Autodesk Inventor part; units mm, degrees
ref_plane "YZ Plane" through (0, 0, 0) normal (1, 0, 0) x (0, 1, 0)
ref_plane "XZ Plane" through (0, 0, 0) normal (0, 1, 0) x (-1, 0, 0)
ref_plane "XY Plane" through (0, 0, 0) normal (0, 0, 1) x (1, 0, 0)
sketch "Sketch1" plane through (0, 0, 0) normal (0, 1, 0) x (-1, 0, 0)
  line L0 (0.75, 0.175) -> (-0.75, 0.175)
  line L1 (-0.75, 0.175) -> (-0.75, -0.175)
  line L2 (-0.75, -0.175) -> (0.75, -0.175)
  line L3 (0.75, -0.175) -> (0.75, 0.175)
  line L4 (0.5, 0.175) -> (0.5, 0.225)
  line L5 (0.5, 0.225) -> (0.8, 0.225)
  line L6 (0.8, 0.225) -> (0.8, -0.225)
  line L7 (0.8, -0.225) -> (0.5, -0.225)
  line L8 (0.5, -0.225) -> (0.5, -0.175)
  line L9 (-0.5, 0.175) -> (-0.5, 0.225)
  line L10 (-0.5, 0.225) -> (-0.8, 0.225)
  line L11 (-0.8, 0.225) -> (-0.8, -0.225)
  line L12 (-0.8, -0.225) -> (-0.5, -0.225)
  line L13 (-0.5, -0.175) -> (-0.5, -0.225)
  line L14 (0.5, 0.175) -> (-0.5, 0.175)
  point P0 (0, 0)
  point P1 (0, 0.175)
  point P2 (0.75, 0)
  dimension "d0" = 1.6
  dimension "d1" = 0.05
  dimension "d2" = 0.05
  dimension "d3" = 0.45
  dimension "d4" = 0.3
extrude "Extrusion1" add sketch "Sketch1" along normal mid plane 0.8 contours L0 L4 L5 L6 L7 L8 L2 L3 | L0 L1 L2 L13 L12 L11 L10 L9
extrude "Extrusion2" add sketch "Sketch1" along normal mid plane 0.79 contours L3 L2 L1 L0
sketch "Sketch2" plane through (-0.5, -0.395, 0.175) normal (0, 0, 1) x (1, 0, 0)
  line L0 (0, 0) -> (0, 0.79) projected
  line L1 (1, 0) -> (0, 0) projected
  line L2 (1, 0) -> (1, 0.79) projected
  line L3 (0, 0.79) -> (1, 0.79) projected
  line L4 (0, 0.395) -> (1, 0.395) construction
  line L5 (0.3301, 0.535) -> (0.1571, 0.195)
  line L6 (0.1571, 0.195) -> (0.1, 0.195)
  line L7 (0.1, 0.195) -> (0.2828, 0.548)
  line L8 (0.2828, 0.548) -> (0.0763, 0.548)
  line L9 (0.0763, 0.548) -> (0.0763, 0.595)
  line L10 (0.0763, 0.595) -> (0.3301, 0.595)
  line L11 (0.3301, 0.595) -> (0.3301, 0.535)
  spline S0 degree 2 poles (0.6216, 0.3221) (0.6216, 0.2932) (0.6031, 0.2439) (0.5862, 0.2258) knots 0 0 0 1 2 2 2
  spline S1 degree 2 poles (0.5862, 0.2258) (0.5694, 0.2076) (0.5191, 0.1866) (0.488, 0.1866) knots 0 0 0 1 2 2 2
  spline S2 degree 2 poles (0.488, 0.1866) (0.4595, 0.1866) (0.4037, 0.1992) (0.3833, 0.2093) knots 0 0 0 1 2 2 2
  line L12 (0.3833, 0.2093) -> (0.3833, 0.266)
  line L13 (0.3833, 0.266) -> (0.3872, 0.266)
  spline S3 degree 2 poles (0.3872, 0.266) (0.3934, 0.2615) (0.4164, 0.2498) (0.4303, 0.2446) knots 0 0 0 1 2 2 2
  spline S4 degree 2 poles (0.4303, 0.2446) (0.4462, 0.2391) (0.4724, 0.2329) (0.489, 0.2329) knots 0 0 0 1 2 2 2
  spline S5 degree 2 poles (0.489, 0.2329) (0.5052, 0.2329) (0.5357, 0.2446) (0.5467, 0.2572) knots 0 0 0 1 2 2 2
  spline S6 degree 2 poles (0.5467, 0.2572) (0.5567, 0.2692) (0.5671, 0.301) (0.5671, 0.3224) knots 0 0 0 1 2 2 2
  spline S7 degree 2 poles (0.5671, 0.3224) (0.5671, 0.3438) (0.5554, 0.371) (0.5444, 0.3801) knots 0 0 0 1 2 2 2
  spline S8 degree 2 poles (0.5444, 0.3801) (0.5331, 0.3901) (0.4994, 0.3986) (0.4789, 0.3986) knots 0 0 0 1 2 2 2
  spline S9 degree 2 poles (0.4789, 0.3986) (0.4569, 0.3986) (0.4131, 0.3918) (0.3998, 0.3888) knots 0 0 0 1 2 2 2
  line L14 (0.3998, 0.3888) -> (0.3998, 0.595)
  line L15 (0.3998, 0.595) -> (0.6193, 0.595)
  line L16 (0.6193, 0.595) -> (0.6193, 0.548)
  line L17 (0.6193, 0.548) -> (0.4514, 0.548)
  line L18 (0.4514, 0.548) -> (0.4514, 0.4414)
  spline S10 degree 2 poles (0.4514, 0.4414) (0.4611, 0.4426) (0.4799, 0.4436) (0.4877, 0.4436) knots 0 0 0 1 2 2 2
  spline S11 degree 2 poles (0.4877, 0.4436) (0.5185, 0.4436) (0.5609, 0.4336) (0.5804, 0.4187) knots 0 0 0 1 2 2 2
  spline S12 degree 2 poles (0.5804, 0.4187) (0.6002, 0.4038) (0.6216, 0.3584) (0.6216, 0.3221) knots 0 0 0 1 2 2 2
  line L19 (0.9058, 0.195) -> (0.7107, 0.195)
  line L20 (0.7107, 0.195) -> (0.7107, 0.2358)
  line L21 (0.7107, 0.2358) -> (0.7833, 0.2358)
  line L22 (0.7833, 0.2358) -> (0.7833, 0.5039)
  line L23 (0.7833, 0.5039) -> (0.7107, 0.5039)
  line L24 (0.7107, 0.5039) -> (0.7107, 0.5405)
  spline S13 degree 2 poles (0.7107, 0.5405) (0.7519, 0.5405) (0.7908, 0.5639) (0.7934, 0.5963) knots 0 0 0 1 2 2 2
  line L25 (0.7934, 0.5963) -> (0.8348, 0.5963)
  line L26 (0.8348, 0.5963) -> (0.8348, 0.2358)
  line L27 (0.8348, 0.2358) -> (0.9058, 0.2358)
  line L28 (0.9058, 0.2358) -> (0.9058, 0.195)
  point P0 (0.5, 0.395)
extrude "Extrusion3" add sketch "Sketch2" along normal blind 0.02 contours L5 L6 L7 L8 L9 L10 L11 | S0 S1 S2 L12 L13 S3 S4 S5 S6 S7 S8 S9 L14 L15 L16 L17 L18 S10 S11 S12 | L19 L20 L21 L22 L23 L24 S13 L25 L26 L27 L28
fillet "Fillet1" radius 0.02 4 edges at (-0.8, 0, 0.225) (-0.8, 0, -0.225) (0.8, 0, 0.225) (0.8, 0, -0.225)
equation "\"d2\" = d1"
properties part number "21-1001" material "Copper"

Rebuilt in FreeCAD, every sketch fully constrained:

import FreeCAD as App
import Part
import Sketcher

V = App.Vector


def edges_at(feature, points):
    """Names of the edges that pass closest to the given points."""
    edges = feature.Shape.Edges
    near = lambda p: min(range(len(edges)), key=lambda i: edges[i].distToShape(Part.Vertex(*p))[0])
    return sorted({f"Edge{near(p) + 1}" for p in points})

doc = App.newDocument("Part")
params = doc.addObject("Spreadsheet::Sheet", "Params")
for row, (alias, value) in enumerate([
    ("sketch1_width", "0.3 mm"),
    ("sketch1_height", "0.05 mm"),
    ("sketch1_height2", "0.45 mm"),
    ("pad1_length", "0.8 mm"),
    ("sketch2_width", "1.5 mm"),
    ("sketch2_height", "0.35 mm"),
    ("pad2_length", "0.79 mm"),
    ("sketch3_height", "0.06 mm"),
    ("pad3_length", "0.02 mm"),
    ("fillet_radius", "0.02 mm"),
], start=1):
    params.set(f"A{row}", alias)
    params.set(f"B{row}", "=" + value)
    params.setAlias(f"B{row}", alias)

body = doc.addObject("PartDesign::Body", "Body")
body.AllowCompound = True

sketch1 = doc.addObject("Sketcher::SketchObject", "Sketch")
body.addObject(sketch1)
sketch1.AttachmentSupport = (doc.XZ_Plane, [""])
sketch1.MapMode = "FlatFace"
sketch1.addGeometry([
    Part.LineSegment(V(-0.5, 0.17, 0), V(-0.75, 0.17, 0)),
    Part.LineSegment(V(-0.75, 0.17, 0), V(-0.75, -0.17, 0)),
    Part.LineSegment(V(-0.75, -0.17, 0), V(-0.5, -0.17, 0)),
    Part.LineSegment(V(-0.5, -0.17, 0), V(-0.5, -0.23, 0)),
    Part.LineSegment(V(-0.5, -0.23, 0), V(-0.8, -0.23, 0)),
    Part.LineSegment(V(-0.8, -0.23, 0), V(-0.8, 0.23, 0)),
    Part.LineSegment(V(-0.8, 0.23, 0), V(-0.5, 0.23, 0)),
    Part.LineSegment(V(-0.5, 0.23, 0), V(-0.5, 0.17, 0)),
    Part.LineSegment(V(0.75, 0.17, 0), V(0.5, 0.17, 0)),
    Part.LineSegment(V(0.5, 0.17, 0), V(0.5, 0.23, 0)),
    Part.LineSegment(V(0.5, 0.23, 0), V(0.8, 0.23, 0)),
    Part.LineSegment(V(0.8, 0.23, 0), V(0.8, -0.23, 0)),
    Part.LineSegment(V(0.8, -0.23, 0), V(0.5, -0.23, 0)),
    Part.LineSegment(V(0.5, -0.23, 0), V(0.5, -0.17, 0)),
    Part.LineSegment(V(0.5, -0.17, 0), V(0.75, -0.17, 0)),
    Part.LineSegment(V(0.75, -0.17, 0), V(0.75, 0.17, 0)),
], False)
sketch1.addConstraint([
    Sketcher.Constraint("Coincident", 0, 2, 1, 1),
    Sketcher.Constraint("Coincident", 1, 2, 2, 1),
    Sketcher.Constraint("Coincident", 2, 2, 3, 1),
    Sketcher.Constraint("Coincident", 3, 2, 4, 1),
    Sketcher.Constraint("Coincident", 4, 2, 5, 1),
    Sketcher.Constraint("Coincident", 5, 2, 6, 1),
    Sketcher.Constraint("Coincident", 6, 2, 7, 1),
    Sketcher.Constraint("Coincident", 7, 2, 0, 1),
    Sketcher.Constraint("Coincident", 8, 2, 9, 1),
    Sketcher.Constraint("Coincident", 9, 2, 10, 1),
    Sketcher.Constraint("Coincident", 10, 2, 11, 1),
    Sketcher.Constraint("Coincident", 11, 2, 12, 1),
    Sketcher.Constraint("Coincident", 12, 2, 13, 1),
    Sketcher.Constraint("Coincident", 13, 2, 14, 1),
    Sketcher.Constraint("Coincident", 14, 2, 15, 1),
    Sketcher.Constraint("Coincident", 15, 2, 8, 1),
    Sketcher.Constraint("Horizontal", 0),
    Sketcher.Constraint("Vertical", 1),
    Sketcher.Constraint("Horizontal", 2),
    Sketcher.Constraint("Vertical", 3),
    Sketcher.Constraint("Horizontal", 4),
    Sketcher.Constraint("Vertical", 5),
    Sketcher.Constraint("Horizontal", 6),
    Sketcher.Constraint("Vertical", 7),
    Sketcher.Constraint("Horizontal", 8),
    Sketcher.Constraint("Vertical", 9),
    Sketcher.Constraint("Horizontal", 10),
    Sketcher.Constraint("Vertical", 11),
    Sketcher.Constraint("Horizontal", 12),
    Sketcher.Constraint("Vertical", 13),
    Sketcher.Constraint("Horizontal", 14),
    Sketcher.Constraint("Vertical", 15),
    Sketcher.Constraint("Symmetric", 2, 2, 8, 2, -1, 1),
    Sketcher.Constraint("Symmetric", 4, 2, 10, 2, -1, 1),
    Sketcher.Constraint("Symmetric", 6, 2, 12, 2, -1, 1),
    Sketcher.Constraint("Symmetric", 0, 2, 14, 2, -1, 1),
    Sketcher.Constraint("Symmetric", 7, 2, 8, 2, -2),
    Sketcher.Constraint("Horizontal", 6, 2, 9, 2),
    Sketcher.Constraint("DistanceX", 4, 2, 4, 1, 0.3),
    Sketcher.Constraint("DistanceY", 3, 2, 3, 1, 0.05),
    Sketcher.Constraint("DistanceY", 5, 1, 5, 2, 0.45),
    Sketcher.Constraint("DistanceX", 4, 2, 1, 2, 0.05),
    Sketcher.Constraint("DistanceX", 7, 2, 8, 2, 1.0),
])
sketch1.setExpression("Constraints[38]", "Params.sketch1_width")
sketch1.setExpression("Constraints[39]", "Params.sketch1_height")
sketch1.setExpression("Constraints[40]", "Params.sketch1_height2")
pad1 = doc.addObject("PartDesign::Pad", "Pad")
body.addObject(pad1)
pad1.Profile = sketch1
pad1.setExpression("Length", "Params.pad1_length")
pad1.Midplane = True

sketch2 = doc.addObject("Sketcher::SketchObject", "Sketch001")
body.addObject(sketch2)
sketch2.AttachmentSupport = (doc.XZ_Plane, [""])
sketch2.MapMode = "FlatFace"
sketch2.addGeometry([
    Part.LineSegment(V(-0.75, -0.17, 0), V(-0.75, 0.17, 0)),
    Part.LineSegment(V(-0.75, 0.17, 0), V(0.75, 0.17, 0)),
    Part.LineSegment(V(0.75, 0.17, 0), V(0.75, -0.17, 0)),
    Part.LineSegment(V(0.75, -0.17, 0), V(-0.75, -0.17, 0)),
], False)
sketch2.addConstraint([
    Sketcher.Constraint("Coincident", 0, 2, 1, 1),
    Sketcher.Constraint("Coincident", 1, 2, 2, 1),
    Sketcher.Constraint("Coincident", 2, 2, 3, 1),
    Sketcher.Constraint("Coincident", 3, 2, 0, 1),
    Sketcher.Constraint("Vertical", 0),
    Sketcher.Constraint("Horizontal", 1),
    Sketcher.Constraint("Vertical", 2),
    Sketcher.Constraint("Horizontal", 3),
    Sketcher.Constraint("Symmetric", 0, 2, 2, 2, -1, 1),
    Sketcher.Constraint("DistanceX", 1, 1, 1, 2, 1.5),
    Sketcher.Constraint("DistanceY", 0, 1, 0, 2, 0.35),
])
sketch2.setExpression("Constraints[9]", "Params.sketch2_width")
sketch2.setExpression("Constraints[10]", "Params.sketch2_height")
pad2 = doc.addObject("PartDesign::Pad", "Pad001")
body.addObject(pad2)
pad2.Profile = sketch2
pad2.setExpression("Length", "Params.pad2_length")
pad2.Midplane = True

sketch3 = doc.addObject("Sketcher::SketchObject", "Sketch002")
body.addObject(sketch3)
sketch3.AttachmentSupport = (doc.XY_Plane, [""])
sketch3.MapMode = "FlatFace"
sketch3.AttachmentOffset = App.Placement(V(0, 0, 0.175), App.Rotation())
sketch3.addGeometry([
    Part.LineSegment(V(-0.3429, -0.2, 0), V(-0.1699, 0.14, 0)),
    Part.LineSegment(V(-0.1699, 0.14, 0), V(-0.1699, 0.2, 0)),
    Part.LineSegment(V(-0.1699, 0.2, 0), V(-0.4237, 0.2, 0)),
    Part.LineSegment(V(-0.4237, 0.2, 0), V(-0.4237, 0.153, 0)),
    Part.LineSegment(V(-0.4237, 0.153, 0), V(-0.2172, 0.153, 0)),
    Part.LineSegment(V(-0.2172, 0.153, 0), V(-0.4, -0.2, 0)),
    Part.LineSegment(V(-0.4, -0.2, 0), V(-0.3429, -0.2, 0)),
    Part.BSplineCurve([V(0.1216, -0.0729, 0), V(0.1216, -0.1018, 0), V(0.1031, -0.1511, 0), V(0.0862, -0.1692, 0)], [3, 1, 3], [0, 1, 2], False, 2, [1, 1, 1, 1], False),
    Part.BSplineCurve([V(0.0804, 0.0237, 0), V(0.1002, 0.0088, 0), V(0.1216, -0.0366, 0), V(0.1216, -0.0729, 0)], [3, 1, 3], [0, 1, 2], False, 2, [1, 1, 1, 1], False),
    Part.BSplineCurve([V(-0.0123, 0.0486, 0), V(0.0185, 0.0486, 0), V(0.0609, 0.0386, 0), V(0.0804, 0.0237, 0)], [3, 1, 3], [0, 1, 2], False, 2, [1, 1, 1, 1], False),
    Part.BSplineCurve([V(-0.0486, 0.0464, 0), V(-0.0389, 0.0476, 0), V(-0.0201, 0.0486, 0), V(-0.0123, 0.0486, 0)], [3, 1, 3], [0, 1, 2], False, 2, [1, 1, 1, 1], False),
    Part.LineSegment(V(-0.0486, 0.0464, 0), V(-0.0486, 0.153, 0)),
    Part.LineSegment(V(-0.0486, 0.153, 0), V(0.1193, 0.153, 0)),
    Part.LineSegment(V(0.1193, 0.153, 0), V(0.1193, 0.2, 0)),
    Part.LineSegment(V(0.1193, 0.2, 0), V(-0.1002, 0.2, 0)),
    Part.LineSegment(V(-0.1002, 0.2, 0), V(-0.1002, -0.0062, 0)),
    Part.BSplineCurve([V(-0.0211, 0.0036, 0), V(-0.0431, 0.0036, 0), V(-0.0869, -0.0032, 0), V(-0.1002, -0.0062, 0)], [3, 1, 3], [0, 1, 2], False, 2, [1, 1, 1, 1], False),
    Part.BSplineCurve([V(0.0444, -0.0149, 0), V(0.0331, -0.0049, 0), V(-0.0006, 0.0036, 0), V(-0.0211, 0.0036, 0)], [3, 1, 3], [0, 1, 2], False, 2, [1, 1, 1, 1], False),
    Part.BSplineCurve([V(0.0671, -0.0726, 0), V(0.0671, -0.0512, 0), V(0.0554, -0.024, 0), V(0.0444, -0.0149, 0)], [3, 1, 3], [0, 1, 2], False, 2, [1, 1, 1, 1], False),
    Part.BSplineCurve([V(0.0467, -0.1378, 0), V(0.0567, -0.1258, 0), V(0.0671, -0.094, 0), V(0.0671, -0.0726, 0)], [3, 1, 3], [0, 1, 2], False, 2, [1, 1, 1, 1], False),
    Part.BSplineCurve([V(-0.011, -0.1621, 0), V(0.0052, -0.1621, 0), V(0.0357, -0.1504, 0), V(0.0467, -0.1378, 0)], [3, 1, 3], [0, 1, 2], False, 2, [1, 1, 1, 1], False),
    Part.BSplineCurve([V(-0.0697, -0.1504, 0), V(-0.0538, -0.1559, 0), V(-0.0276, -0.1621, 0), V(-0.011, -0.1621, 0)], [3, 1, 3], [0, 1, 2], False, 2, [1, 1, 1, 1], False),
    Part.BSplineCurve([V(-0.1128, -0.129, 0), V(-0.1066, -0.1335, 0), V(-0.0836, -0.1452, 0), V(-0.0697, -0.1504, 0)], [3, 1, 3], [0, 1, 2], False, 2, [1, 1, 1, 1], False),
    Part.LineSegment(V(-0.1128, -0.129, 0), V(-0.1167, -0.129, 0)),
    Part.LineSegment(V(-0.1167, -0.129, 0), V(-0.1167, -0.1857, 0)),
    Part.BSplineCurve([V(-0.012, -0.2084, 0), V(-0.0405, -0.2084, 0), V(-0.0963, -0.1958, 0), V(-0.1167, -0.1857, 0)], [3, 1, 3], [0, 1, 2], False, 2, [1, 1, 1, 1], False),
    Part.BSplineCurve([V(0.0862, -0.1692, 0), V(0.0694, -0.1874, 0), V(0.0191, -0.2084, 0), V(-0.012, -0.2084, 0)], [3, 1, 3], [0, 1, 2], False, 2, [1, 1, 1, 1], False),
    Part.LineSegment(V(0.2107, -0.2, 0), V(0.4058, -0.2, 0)),
    Part.LineSegment(V(0.4058, -0.2, 0), V(0.4058, -0.1592, 0)),
    Part.LineSegment(V(0.4058, -0.1592, 0), V(0.3348, -0.1592, 0)),
    Part.LineSegment(V(0.3348, -0.1592, 0), V(0.3348, 0.2013, 0)),
    Part.LineSegment(V(0.3348, 0.2013, 0), V(0.2934, 0.2013, 0)),
    Part.BSplineCurve([V(0.2107, 0.1455, 0), V(0.2519, 0.1455, 0), V(0.2908, 0.1689, 0), V(0.2934, 0.2013, 0)], [3, 1, 3], [0, 1, 2], False, 2, [1, 1, 1, 1], False),
    Part.LineSegment(V(0.2107, 0.1455, 0), V(0.2107, 0.1089, 0)),
    Part.LineSegment(V(0.2107, 0.1089, 0), V(0.2833, 0.1089, 0)),
    Part.LineSegment(V(0.2833, 0.1089, 0), V(0.2833, -0.1592, 0)),
    Part.LineSegment(V(0.2833, -0.1592, 0), V(0.2107, -0.1592, 0)),
    Part.LineSegment(V(0.2107, -0.1592, 0), V(0.2107, -0.2, 0)),
], False)
sketch3.addConstraint([
    Sketcher.Constraint("Block", 7),
    Sketcher.Constraint("Block", 8),
    Sketcher.Constraint("Block", 9),
    Sketcher.Constraint("Block", 10),
    Sketcher.Constraint("Block", 16),
    Sketcher.Constraint("Block", 17),
    Sketcher.Constraint("Block", 18),
    Sketcher.Constraint("Block", 19),
    Sketcher.Constraint("Block", 20),
    Sketcher.Constraint("Block", 21),
    Sketcher.Constraint("Block", 22),
    Sketcher.Constraint("Block", 25),
    Sketcher.Constraint("Block", 26),
    Sketcher.Constraint("Block", 32),
    Sketcher.Constraint("Coincident", 0, 2, 1, 1),
    Sketcher.Constraint("Coincident", 1, 2, 2, 1),
    Sketcher.Constraint("Coincident", 2, 2, 3, 1),
    Sketcher.Constraint("Coincident", 3, 2, 4, 1),
    Sketcher.Constraint("Coincident", 4, 2, 5, 1),
    Sketcher.Constraint("Coincident", 5, 2, 6, 1),
    Sketcher.Constraint("Coincident", 6, 2, 0, 1),
    Sketcher.Constraint("Coincident", 10, 1, 11, 1),
    Sketcher.Constraint("Coincident", 11, 2, 12, 1),
    Sketcher.Constraint("Coincident", 12, 2, 13, 1),
    Sketcher.Constraint("Coincident", 13, 2, 14, 1),
    Sketcher.Constraint("Coincident", 14, 2, 15, 1),
    Sketcher.Constraint("Coincident", 15, 2, 16, 2),
    Sketcher.Constraint("Coincident", 22, 1, 23, 1),
    Sketcher.Constraint("Coincident", 23, 2, 24, 1),
    Sketcher.Constraint("Coincident", 24, 2, 25, 2),
    Sketcher.Constraint("Coincident", 27, 2, 28, 1),
    Sketcher.Constraint("Coincident", 28, 2, 29, 1),
    Sketcher.Constraint("Coincident", 29, 2, 30, 1),
    Sketcher.Constraint("Coincident", 30, 2, 31, 1),
    Sketcher.Constraint("Coincident", 31, 2, 32, 2),
    Sketcher.Constraint("Coincident", 32, 1, 33, 1),
    Sketcher.Constraint("Coincident", 33, 2, 34, 1),
    Sketcher.Constraint("Coincident", 34, 2, 35, 1),
    Sketcher.Constraint("Coincident", 35, 2, 36, 1),
    Sketcher.Constraint("Coincident", 36, 2, 37, 1),
    Sketcher.Constraint("Coincident", 37, 2, 27, 1),
    Sketcher.Constraint("Vertical", 1),
    Sketcher.Constraint("Horizontal", 2),
    Sketcher.Constraint("Vertical", 3),
    Sketcher.Constraint("Horizontal", 4),
    Sketcher.Constraint("Horizontal", 6),
    Sketcher.Constraint("Vertical", 11),
    Sketcher.Constraint("Horizontal", 12),
    Sketcher.Constraint("Vertical", 13),
    Sketcher.Constraint("Horizontal", 14),
    Sketcher.Constraint("Vertical", 15),
    Sketcher.Constraint("Horizontal", 23),
    Sketcher.Constraint("Vertical", 24),
    Sketcher.Constraint("Horizontal", 27),
    Sketcher.Constraint("Vertical", 28),
    Sketcher.Constraint("Horizontal", 29),
    Sketcher.Constraint("Vertical", 30),
    Sketcher.Constraint("Horizontal", 31),
    Sketcher.Constraint("Vertical", 33),
    Sketcher.Constraint("Horizontal", 34),
    Sketcher.Constraint("Vertical", 35),
    Sketcher.Constraint("Horizontal", 36),
    Sketcher.Constraint("Vertical", 37),
    Sketcher.Constraint("Horizontal", 4, 2, 11, 2),
    Sketcher.Constraint("Horizontal", 2, 2, 13, 2),
    Sketcher.Constraint("Horizontal", 6, 2, 27, 2),
    Sketcher.Constraint("Horizontal", 29, 2, 35, 2),
    Sketcher.Constraint("Vertical", 33, 2, 36, 2),
    Sketcher.Constraint("DistanceY", 1, 1, 1, 2, 0.06),
    Sketcher.Constraint("DistanceY", -1, 1, 1, 2, 0.2),
    Sketcher.Constraint("DistanceX", 5, 2, -1, 1, 0.4),
    Sketcher.Constraint("DistanceY", 5, 2, -1, 1, 0.2),
    Sketcher.Constraint("DistanceX", 6, 1, 6, 2, 0.057),
    Sketcher.Constraint("DistanceX", 12, 1, 12, 2, 0.168),
    Sketcher.Constraint("DistanceX", 27, 1, 27, 2, 0.195),
    Sketcher.Constraint("DistanceX", 29, 2, 29, 1, 0.071),
    Sketcher.Constraint("DistanceY", 3, 2, 3, 1, 0.047),
    Sketcher.Constraint("DistanceY", 35, 2, 35, 1, 0.268),
    Sketcher.Constraint("DistanceX", 0, 2, -1, 1, 0.17),
    Sketcher.Constraint("DistanceX", 34, 2, 31, 2, 0.01),
    Sketcher.Constraint("DistanceX", 2, 2, 2, 1, 0.2538),
    Sketcher.Constraint("DistanceX", 4, 1, 4, 2, 0.2065),
    Sketcher.Constraint("DistanceY", 28, 1, 28, 2, 0.0408),
])
sketch3.setExpression("Constraints[68]", "Params.sketch3_height")
pad3 = doc.addObject("PartDesign::Pad", "Pad002")
body.addObject(pad3)
pad3.Profile = sketch3
pad3.setExpression("Length", "Params.pad3_length")
doc.recompute()

fillet = doc.addObject("PartDesign::Fillet", "Fillet")
body.addObject(fillet)
fillet.Base = (pad3, edges_at(pad3, [
    (-0.8, 0, 0.225),
    (-0.8, 0, -0.225),
    (0.8, 0, 0.225),
    (0.8, 0, -0.225),
]))
fillet.setExpression("Radius", "Params.fillet_radius")

doc.recompute()
